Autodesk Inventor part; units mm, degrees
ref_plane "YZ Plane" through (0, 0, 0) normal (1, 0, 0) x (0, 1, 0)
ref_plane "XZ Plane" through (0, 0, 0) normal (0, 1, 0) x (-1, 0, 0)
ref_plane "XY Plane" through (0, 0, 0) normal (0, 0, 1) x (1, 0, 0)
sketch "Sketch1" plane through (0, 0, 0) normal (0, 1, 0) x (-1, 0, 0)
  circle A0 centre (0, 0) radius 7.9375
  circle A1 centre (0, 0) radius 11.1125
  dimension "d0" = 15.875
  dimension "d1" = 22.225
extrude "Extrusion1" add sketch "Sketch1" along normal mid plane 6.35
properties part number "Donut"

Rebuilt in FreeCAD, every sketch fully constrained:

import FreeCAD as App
import Part
import Sketcher
from FreeCAD import Vector
Q = App.Units.Quantity

doc = App.newDocument("Part")
body = doc.addObject("PartDesign::Body", "Body")

# Sketch on XZ plane
sketch1 = body.newObject("Sketcher::SketchObject", "Sketch")
sketch1.AttachmentSupport = (doc.getObject("XZ_Plane"), [""])
sketch1.MapMode = "FlatFace"
sketch1.addGeometry([
    Part.Circle(Vector(0, 0, 0), Vector(0, 0, 1), 11.1125),
    Part.Circle(Vector(0, 0, 0), Vector(0, 0, 1), 7.9375),
], False)
sketch1.addConstraint([
    Sketcher.Constraint("Coincident", 0, 3, -1, 1),
    Sketcher.Constraint("Coincident", 1, 3, -1, 1),
    Sketcher.Constraint("Diameter", 0, Q("0.875 in")),
    Sketcher.Constraint("Diameter", 1, Q("0.625 in")),
])
pad1 = body.newObject("PartDesign::Pad", "Pad")
pad1.Profile = sketch1
pad1.Length = Q("0.25 in")
pad1.Midplane = True

doc.recompute()
